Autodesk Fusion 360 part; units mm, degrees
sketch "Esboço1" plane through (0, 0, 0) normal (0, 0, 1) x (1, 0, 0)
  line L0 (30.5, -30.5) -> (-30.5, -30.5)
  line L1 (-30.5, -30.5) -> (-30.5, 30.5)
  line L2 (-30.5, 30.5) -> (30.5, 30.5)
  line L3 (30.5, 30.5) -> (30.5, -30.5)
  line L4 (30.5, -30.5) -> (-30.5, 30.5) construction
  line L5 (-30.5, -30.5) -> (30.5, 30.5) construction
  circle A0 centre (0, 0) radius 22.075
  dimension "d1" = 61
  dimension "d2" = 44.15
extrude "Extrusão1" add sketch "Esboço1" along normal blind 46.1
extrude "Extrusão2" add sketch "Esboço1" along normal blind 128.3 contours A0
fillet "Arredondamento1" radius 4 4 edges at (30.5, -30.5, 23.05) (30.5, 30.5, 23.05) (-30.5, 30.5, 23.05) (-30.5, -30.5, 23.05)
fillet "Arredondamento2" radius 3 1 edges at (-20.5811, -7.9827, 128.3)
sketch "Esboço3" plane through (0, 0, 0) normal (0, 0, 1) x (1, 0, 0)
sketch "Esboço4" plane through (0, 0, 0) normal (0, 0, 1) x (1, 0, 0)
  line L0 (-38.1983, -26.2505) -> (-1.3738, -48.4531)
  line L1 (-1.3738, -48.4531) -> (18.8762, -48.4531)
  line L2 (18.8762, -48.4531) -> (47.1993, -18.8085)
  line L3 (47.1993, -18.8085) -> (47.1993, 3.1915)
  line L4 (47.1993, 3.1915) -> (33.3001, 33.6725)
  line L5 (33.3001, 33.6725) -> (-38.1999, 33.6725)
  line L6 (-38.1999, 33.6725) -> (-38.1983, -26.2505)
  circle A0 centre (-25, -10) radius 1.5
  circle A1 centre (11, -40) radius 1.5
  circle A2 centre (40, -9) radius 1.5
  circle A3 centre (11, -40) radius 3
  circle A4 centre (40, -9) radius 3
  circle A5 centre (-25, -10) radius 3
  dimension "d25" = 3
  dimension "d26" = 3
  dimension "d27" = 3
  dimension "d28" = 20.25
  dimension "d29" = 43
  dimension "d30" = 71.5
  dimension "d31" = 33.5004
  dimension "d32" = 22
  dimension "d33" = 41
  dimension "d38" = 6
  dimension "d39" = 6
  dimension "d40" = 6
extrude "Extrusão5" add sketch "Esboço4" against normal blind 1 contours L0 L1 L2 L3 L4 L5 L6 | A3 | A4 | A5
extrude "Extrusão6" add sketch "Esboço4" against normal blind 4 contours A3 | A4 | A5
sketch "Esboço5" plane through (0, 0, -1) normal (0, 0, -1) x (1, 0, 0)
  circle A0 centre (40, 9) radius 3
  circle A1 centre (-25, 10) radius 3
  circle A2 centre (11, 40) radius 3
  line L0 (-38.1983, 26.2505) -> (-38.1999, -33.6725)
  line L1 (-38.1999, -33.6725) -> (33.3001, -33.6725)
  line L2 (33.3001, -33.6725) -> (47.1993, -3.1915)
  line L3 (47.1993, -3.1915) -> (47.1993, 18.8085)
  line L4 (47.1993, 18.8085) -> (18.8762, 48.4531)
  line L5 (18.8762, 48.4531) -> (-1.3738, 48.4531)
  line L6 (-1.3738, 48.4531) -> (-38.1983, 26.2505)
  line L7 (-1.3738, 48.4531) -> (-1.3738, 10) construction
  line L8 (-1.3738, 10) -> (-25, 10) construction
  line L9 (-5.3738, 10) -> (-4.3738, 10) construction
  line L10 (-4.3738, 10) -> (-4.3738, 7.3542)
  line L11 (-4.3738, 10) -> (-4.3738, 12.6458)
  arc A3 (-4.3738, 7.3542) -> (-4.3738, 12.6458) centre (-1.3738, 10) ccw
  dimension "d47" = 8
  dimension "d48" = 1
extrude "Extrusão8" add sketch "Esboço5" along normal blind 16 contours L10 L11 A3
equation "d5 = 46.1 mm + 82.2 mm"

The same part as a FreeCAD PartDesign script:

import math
import FreeCAD as App
import Part
import Sketcher
from FreeCAD import Vector


def edges_at(feature, points):
    """Names of the edges that pass closest to the given points."""
    edges = feature.Shape.Edges
    near = lambda p: min(range(len(edges)), key=lambda i: edges[i].distToShape(Part.Vertex(*p))[0])
    return sorted({f"Edge{near(p) + 1}" for p in points})

doc = App.newDocument("Part")
body = doc.addObject("PartDesign::Body", "Body")

sketch1 = doc.addObject("Sketcher::SketchObject", "Sketch")
body.addObject(sketch1)
sketch1.AttachmentSupport = (doc.XY_Plane, [""])
sketch1.MapMode = "FlatFace"
sketch1.addGeometry([
    Part.LineSegment(Vector(-30, -30, 0), Vector(30, -30, 0)),
    Part.LineSegment(Vector(30, -30, 0), Vector(30, 30, 0)),
    Part.LineSegment(Vector(30, 30, 0), Vector(-30, 30, 0)),
    Part.LineSegment(Vector(-30, 30, 0), Vector(-30, -30, 0)),
    Part.Circle(Vector(0, 0, 0), Vector(0, 0, 1), 22),
], False)
sketch1.addConstraint([
    Sketcher.Constraint("Coincident", 0, 2, 1, 1),
    Sketcher.Constraint("Coincident", 1, 2, 2, 1),
    Sketcher.Constraint("Coincident", 2, 2, 3, 1),
    Sketcher.Constraint("Coincident", 3, 2, 0, 1),
    Sketcher.Constraint("Horizontal", 0),
    Sketcher.Constraint("Vertical", 1),
    Sketcher.Constraint("Horizontal", 2),
    Sketcher.Constraint("Vertical", 3),
    Sketcher.Constraint("Coincident", 4, 3, -1, 1),
    Sketcher.Constraint("Symmetric", 0, 2, 2, 2, -1, 1),
    Sketcher.Constraint("Equal", 2, 1),
    Sketcher.Constraint("Diameter", 4, 44.15),
    Sketcher.Constraint("DistanceX", 0, 1, 0, 2, 61.0),
])
pad1 = doc.addObject("PartDesign::Pad", "Pad")
body.addObject(pad1)
pad1.Profile = sketch1
pad1.Length = 46.1

sketch2 = doc.addObject("Sketcher::SketchObject", "Sketch001")
body.addObject(sketch2)
sketch2.AttachmentSupport = (doc.XY_Plane, [""])
sketch2.MapMode = "FlatFace"
sketch2.addGeometry(Part.Circle(Vector(0, 0, 0), Vector(0, 0, 1), 22), False)
sketch2.addConstraint([
    Sketcher.Constraint("Coincident", 0, 3, -1, 1),
    Sketcher.Constraint("Diameter", 0, 44.15),
])
pad2 = doc.addObject("PartDesign::Pad", "Pad001")
body.addObject(pad2)
pad2.Profile = sketch2
pad2.Length = 128.3
doc.recompute()

fillet = doc.addObject("PartDesign::Fillet", "Fillet")
body.addObject(fillet)
fillet.Base = (pad2, edges_at(pad2, [
    (30.5, -30.5, 23.05),
    (30.5, 30.5, 23.05),
    (-30.5, 30.5, 23.05),
    (-30.5, -30.5, 23.05),
]))
fillet.Radius = 4
doc.recompute()

fillet2 = doc.addObject("PartDesign::Fillet", "Fillet001")
body.addObject(fillet2)
fillet2.Base = (fillet, edges_at(fillet, [(-20.581, -7.983, 128.3)]))
fillet2.Radius = 3

sketch3 = doc.addObject("Sketcher::SketchObject", "Sketch002")
body.addObject(sketch3)
sketch3.AttachmentSupport = (doc.XY_Plane, [""])
sketch3.MapMode = "FlatFace"
sketch3.addGeometry([
    Part.LineSegment(Vector(-38.2, 33.7, 0), Vector(-38.2, -26.3, 0)),
    Part.LineSegment(Vector(-38.2, -26.3, 0), Vector(-1.4, -48.5, 0)),
    Part.LineSegment(Vector(-1.4, -48.5, 0), Vector(18.9, -48.5, 0)),
    Part.LineSegment(Vector(18.9, -48.5, 0), Vector(47.2, -18.8, 0)),
    Part.LineSegment(Vector(47.2, -18.8, 0), Vector(47.2, 3.2, 0)),
    Part.LineSegment(Vector(47.2, 3.2, 0), Vector(33.3, 33.7, 0)),
    Part.LineSegment(Vector(33.3, 33.7, 0), Vector(-38.2, 33.7, 0)),
    Part.Circle(Vector(-25, -10, 0), Vector(0, 0, 1), 1.5),
    Part.Circle(Vector(11, -40, 0), Vector(0, 0, 1), 1.5),
    Part.Circle(Vector(40, -9, 0), Vector(0, 0, 1), 1.5),
], False)
sketch3.addConstraint([
    Sketcher.Constraint("Coincident", 0, 2, 1, 1),
    Sketcher.Constraint("Coincident", 1, 2, 2, 1),
    Sketcher.Constraint("Coincident", 2, 2, 3, 1),
    Sketcher.Constraint("Coincident", 3, 2, 4, 1),
    Sketcher.Constraint("Coincident", 4, 2, 5, 1),
    Sketcher.Constraint("Coincident", 5, 2, 6, 1),
    Sketcher.Constraint("Coincident", 6, 2, 0, 1),
    Sketcher.Constraint("Horizontal", 2),
    Sketcher.Constraint("Vertical", 4),
    Sketcher.Constraint("Horizontal", 6),
    Sketcher.Constraint("Equal", 7, 8),
    Sketcher.Constraint("Equal", 8, 9),
    Sketcher.Constraint("Diameter", 7, 3.0),
    Sketcher.Constraint("DistanceY", 4, 1, 4, 2, 22.0),
    Sketcher.Constraint("Distance", 1, 43.0),
    Sketcher.Constraint("Distance", 3, 41.0),
    Sketcher.Constraint("DistanceX", 6, 2, 6, 1, 71.5),
    Sketcher.Constraint("DistanceX", 2, 1, 2, 2, 20.25),
    Sketcher.Constraint("DistanceX", 7, 3, -1, 1, 25.0),
    Sketcher.Constraint("DistanceY", 7, 3, -1, 1, 10.0),
    Sketcher.Constraint("DistanceX", -1, 1, 8, 3, 11.0),
    Sketcher.Constraint("DistanceY", 8, 3, -1, 1, 40.0),
    Sketcher.Constraint("DistanceX", -1, 1, 9, 3, 40.0),
    Sketcher.Constraint("DistanceY", 9, 3, -1, 1, 9.0),
    Sketcher.Constraint("Distance", 5, 33.5004),
    Sketcher.Constraint("DistanceX", -1, 1, 5, 2, 33.3),
    Sketcher.Constraint("Distance", 0, 59.923),
    Sketcher.Constraint("DistanceY", 1, 2, -1, 1, 48.453),
    Sketcher.Constraint("DistanceX", 2, 2, 3, 2, 28.323),
    Sketcher.Constraint("DistanceY", 4, 2, 5, 2, 30.481),
])
pad3 = doc.addObject("PartDesign::Pad", "Pad002")
body.addObject(pad3)
pad3.Profile = sketch3
pad3.Length = 1
pad3.Reversed = True

sketch4 = doc.addObject("Sketcher::SketchObject", "Sketch003")
body.addObject(sketch4)
sketch4.AttachmentSupport = (doc.XY_Plane, [""])
sketch4.MapMode = "FlatFace"
sketch4.addGeometry([
    Part.Circle(Vector(11, -40, 0), Vector(0, 0, 1), 3),
    Part.Circle(Vector(11, -40, 0), Vector(0, 0, 1), 1.5),
    Part.Circle(Vector(40, -9, 0), Vector(0, 0, 1), 3),
    Part.Circle(Vector(40, -9, 0), Vector(0, 0, 1), 1.5),
    Part.Circle(Vector(-25, -10, 0), Vector(0, 0, 1), 3),
    Part.Circle(Vector(-25, -10, 0), Vector(0, 0, 1), 1.5),
], False)
sketch4.addConstraint([
    Sketcher.Constraint("Coincident", 1, 3, 0, 3),
    Sketcher.Constraint("Coincident", 3, 3, 2, 3),
    Sketcher.Constraint("Coincident", 5, 3, 4, 3),
    Sketcher.Constraint("Equal", 0, 2),
    Sketcher.Constraint("Equal", 1, 3),
    Sketcher.Constraint("Equal", 2, 4),
    Sketcher.Constraint("Equal", 3, 5),
    Sketcher.Constraint("Diameter", 0, 6.0),
    Sketcher.Constraint("Diameter", 1, 3.0),
    Sketcher.Constraint("DistanceX", -1, 1, 0, 3, 11.0),
    Sketcher.Constraint("DistanceY", 0, 3, -1, 1, 40.0),
    Sketcher.Constraint("DistanceX", -1, 1, 2, 3, 40.0),
    Sketcher.Constraint("DistanceY", 2, 3, -1, 1, 9.0),
    Sketcher.Constraint("DistanceX", 4, 3, -1, 1, 25.0),
    Sketcher.Constraint("DistanceY", 4, 3, -1, 1, 10.0),
])
pad4 = doc.addObject("PartDesign::Pad", "Pad003")
body.addObject(pad4)
pad4.Profile = sketch4
pad4.Length = 4
pad4.Reversed = True

sketch5 = doc.addObject("Sketcher::SketchObject", "Sketch004")
body.addObject(sketch5)
sketch5.AttachmentSupport = (doc.XY_Plane, [""])
sketch5.MapMode = "FlatFace"
sketch5.AttachmentOffset = App.Placement(Vector(0, 0, -1), App.Rotation())
sketch5.addGeometry([
    Part.LineSegment(Vector(-4.4, -12.6, 0), Vector(-4.4, -7.4, 0)),
    Part.ArcOfCircle(Part.Circle(Vector(-1.4, -10, 0), Vector(0, 0, 1), 4), math.radians(-139), math.radians(139)),
], False)
sketch5.addConstraint([
    Sketcher.Constraint("Coincident", 0, 1, 1, 1),
    Sketcher.Constraint("Coincident", 1, 2, 0, 2),
    Sketcher.Constraint("Vertical", 0),
    Sketcher.Constraint("Radius", 1, 4.0),
    Sketcher.Constraint("DistanceY", 1, 3, -1, 1, 10.0),
    Sketcher.Constraint("DistanceX", 0, 1, 1, 3, 3.0),
    Sketcher.Constraint("DistanceX", 1, 3, -1, 1, 1.3738),
])
pad5 = doc.addObject("PartDesign::Pad", "Pad004")
body.addObject(pad5)
pad5.Profile = sketch5
pad5.Length = 16
pad5.Reversed = True

doc.recompute()
